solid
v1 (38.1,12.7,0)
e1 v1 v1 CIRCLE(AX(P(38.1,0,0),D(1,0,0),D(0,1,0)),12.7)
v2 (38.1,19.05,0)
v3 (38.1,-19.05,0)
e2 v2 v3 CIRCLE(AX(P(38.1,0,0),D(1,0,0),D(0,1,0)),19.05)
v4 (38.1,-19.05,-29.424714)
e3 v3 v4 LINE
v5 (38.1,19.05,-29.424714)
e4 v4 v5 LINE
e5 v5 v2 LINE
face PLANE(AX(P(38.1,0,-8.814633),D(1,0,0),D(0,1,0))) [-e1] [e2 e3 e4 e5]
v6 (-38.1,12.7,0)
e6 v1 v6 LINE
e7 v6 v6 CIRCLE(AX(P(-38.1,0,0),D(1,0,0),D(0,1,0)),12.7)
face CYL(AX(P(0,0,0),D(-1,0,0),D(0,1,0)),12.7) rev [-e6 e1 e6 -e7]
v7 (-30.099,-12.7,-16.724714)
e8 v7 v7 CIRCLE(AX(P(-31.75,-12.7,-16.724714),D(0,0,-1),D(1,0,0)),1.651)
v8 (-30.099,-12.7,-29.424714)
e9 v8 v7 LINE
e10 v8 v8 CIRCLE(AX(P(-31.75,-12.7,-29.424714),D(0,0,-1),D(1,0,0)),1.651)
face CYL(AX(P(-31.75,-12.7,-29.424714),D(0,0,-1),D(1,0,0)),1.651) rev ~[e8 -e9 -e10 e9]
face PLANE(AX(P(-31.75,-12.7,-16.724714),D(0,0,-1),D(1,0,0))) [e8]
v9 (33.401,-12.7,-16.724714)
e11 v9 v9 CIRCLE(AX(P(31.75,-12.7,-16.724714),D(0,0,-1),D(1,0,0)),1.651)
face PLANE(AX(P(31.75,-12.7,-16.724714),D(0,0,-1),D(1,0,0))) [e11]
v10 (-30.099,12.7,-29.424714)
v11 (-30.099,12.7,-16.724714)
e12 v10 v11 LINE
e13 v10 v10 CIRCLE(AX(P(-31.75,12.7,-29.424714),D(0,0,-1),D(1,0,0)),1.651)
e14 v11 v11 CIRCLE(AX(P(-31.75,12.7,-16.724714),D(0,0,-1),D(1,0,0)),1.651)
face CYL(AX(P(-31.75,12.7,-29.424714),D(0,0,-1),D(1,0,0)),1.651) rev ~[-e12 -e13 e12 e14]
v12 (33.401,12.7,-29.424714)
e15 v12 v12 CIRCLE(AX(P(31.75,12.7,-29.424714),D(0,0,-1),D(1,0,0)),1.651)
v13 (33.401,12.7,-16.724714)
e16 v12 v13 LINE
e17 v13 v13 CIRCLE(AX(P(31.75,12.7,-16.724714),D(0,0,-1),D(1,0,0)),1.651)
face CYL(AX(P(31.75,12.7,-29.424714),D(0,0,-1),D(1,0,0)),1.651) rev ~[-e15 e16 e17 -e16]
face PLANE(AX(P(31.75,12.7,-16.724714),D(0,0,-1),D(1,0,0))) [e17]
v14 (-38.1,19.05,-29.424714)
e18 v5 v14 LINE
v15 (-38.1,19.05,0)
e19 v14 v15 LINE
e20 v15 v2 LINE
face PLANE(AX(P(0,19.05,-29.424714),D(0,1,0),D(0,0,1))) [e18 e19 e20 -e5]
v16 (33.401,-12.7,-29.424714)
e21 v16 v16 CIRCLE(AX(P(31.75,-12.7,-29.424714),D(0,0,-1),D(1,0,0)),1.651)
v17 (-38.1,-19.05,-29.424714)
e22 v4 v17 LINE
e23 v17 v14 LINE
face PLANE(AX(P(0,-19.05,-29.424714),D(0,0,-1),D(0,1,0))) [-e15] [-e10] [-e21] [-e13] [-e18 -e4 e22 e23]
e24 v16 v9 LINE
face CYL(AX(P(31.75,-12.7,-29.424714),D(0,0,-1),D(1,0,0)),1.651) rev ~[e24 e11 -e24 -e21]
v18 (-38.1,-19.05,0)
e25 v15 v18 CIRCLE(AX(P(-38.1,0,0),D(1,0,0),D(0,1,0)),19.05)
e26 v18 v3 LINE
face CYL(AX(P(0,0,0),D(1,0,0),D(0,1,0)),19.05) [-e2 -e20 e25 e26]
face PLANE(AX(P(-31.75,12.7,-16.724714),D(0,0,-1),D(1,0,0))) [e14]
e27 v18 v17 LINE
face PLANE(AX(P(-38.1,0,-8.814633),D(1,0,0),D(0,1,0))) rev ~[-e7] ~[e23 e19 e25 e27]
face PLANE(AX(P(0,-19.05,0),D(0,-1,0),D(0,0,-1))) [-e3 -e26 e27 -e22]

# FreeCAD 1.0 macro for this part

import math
import FreeCAD as App
import Part
import Sketcher
Q = App.Units.Quantity

doc = App.newDocument("Part")
params = doc.addObject("Spreadsheet::Sheet", "Params")
for row, (alias, value) in enumerate([
    ("sketch1_diameter", "1 in"),
    ("sketch1_radius", "0.75 in"),
    ("pad1_length", "3 in"),
    ("sketch2_diameter", "0.13 in"),
    ("pocket1_length", "0.5 in"),
], start=1):
    params.set(f"A{row}", alias)
    params.set(f"B{row}", "=" + value)
    params.setAlias(f"B{row}", alias)

body = doc.addObject("PartDesign::Body", "Body")

# Sketch on YZ plane
sketch1 = body.newObject("Sketcher::SketchObject", "Sketch")
sketch1.AttachmentSupport = (doc.getObject("YZ_Plane"), [""])
sketch1.MapMode = "FlatFace"
sketch1.addGeometry([
    Part.LineSegment(App.Vector(19, -29, 0), App.Vector(19, 0, 0)),  # 0
    Part.ArcOfCircle(Part.Circle(App.Vector(0, 0, 0), App.Vector(0, 0, 1), 19), math.radians(0), math.radians(180)),  # 1
    Part.LineSegment(App.Vector(-19, 0, 0), App.Vector(-19, -29, 0)),  # 2
    Part.LineSegment(App.Vector(-19, -29, 0), App.Vector(19, -29, 0)),  # 3
    Part.Circle(App.Vector(0, 0, 0), App.Vector(0, 0, 1), 13),  # 4
], False)
sketch1.addConstraint([
    Sketcher.Constraint("Tangent", 0, 2, 1, 1),
    Sketcher.Constraint("Tangent", 1, 2, 2, 1),
    Sketcher.Constraint("Coincident", 2, 2, 3, 1),
    Sketcher.Constraint("Coincident", 3, 2, 0, 1),
    Sketcher.Constraint("Vertical", 0),
    Sketcher.Constraint("Vertical", 2),
    Sketcher.Constraint("Horizontal", 3),
    Sketcher.Constraint("Coincident", 1, 3, -1, 1),
    Sketcher.Constraint("Coincident", 4, 3, -1, 1),
    Sketcher.Constraint("Diameter", 4, Q("1 in")),
    Sketcher.Constraint("Radius", 1, Q("0.75 in")),
    Sketcher.Constraint("DistanceY", 0, 1, 0, 2, 29.424714),
])
sketch1.setExpression("Constraints[9]", "Params.sketch1_diameter")
sketch1.setExpression("Constraints[10]", "Params.sketch1_radius")
pad1 = body.newObject("PartDesign::Pad", "Pad")
pad1.Profile = sketch1
pad1.setExpression("Length", "Params.pad1_length")
pad1.Midplane = True

# Sketch on XY plane
sketch2 = body.newObject("Sketcher::SketchObject", "Sketch001")
sketch2.AttachmentSupport = (doc.getObject("XY_Plane"), [""])
sketch2.MapMode = "FlatFace"
sketch2.AttachmentOffset = App.Placement(App.Vector(0, 0, -29.424714), App.Rotation())
sketch2.addGeometry([
    Part.Circle(App.Vector(31.8, -12.7, 0), App.Vector(0, 0, 1), 1.7),
    Part.Circle(App.Vector(-31.8, -12.7, 0), App.Vector(0, 0, 1), 1.7),
    Part.Circle(App.Vector(-31.8, 12.7, 0), App.Vector(0, 0, 1), 1.7),
    Part.Circle(App.Vector(31.8, 12.7, 0), App.Vector(0, 0, 1), 1.7),
], False)
sketch2.addConstraint([
    Sketcher.Constraint("Equal", 0, 1),
    Sketcher.Constraint("Equal", 1, 2),
    Sketcher.Constraint("Equal", 2, 3),
    Sketcher.Constraint("Symmetric", 0, 3, 2, 3, -1, 1),
    Sketcher.Constraint("Symmetric", 1, 3, 3, 3, -1, 1),
    Sketcher.Constraint("Symmetric", 0, 3, 1, 3, -2),
    Sketcher.Constraint("Diameter", 0, Q("0.13 in")),
    Sketcher.Constraint("DistanceY", 1, 3, 2, 3, Q("1 in")),
    Sketcher.Constraint("DistanceX", 1, 3, 0, 3, Q("2.5 in")),
])
sketch2.setExpression("Constraints[6]", "Params.sketch2_diameter")
pocket1 = body.newObject("PartDesign::Pocket", "Pocket")
pocket1.Profile = sketch2
pocket1.setExpression("Length", "Params.pocket1_length")
pocket1.Reversed = True

doc.recompute()
